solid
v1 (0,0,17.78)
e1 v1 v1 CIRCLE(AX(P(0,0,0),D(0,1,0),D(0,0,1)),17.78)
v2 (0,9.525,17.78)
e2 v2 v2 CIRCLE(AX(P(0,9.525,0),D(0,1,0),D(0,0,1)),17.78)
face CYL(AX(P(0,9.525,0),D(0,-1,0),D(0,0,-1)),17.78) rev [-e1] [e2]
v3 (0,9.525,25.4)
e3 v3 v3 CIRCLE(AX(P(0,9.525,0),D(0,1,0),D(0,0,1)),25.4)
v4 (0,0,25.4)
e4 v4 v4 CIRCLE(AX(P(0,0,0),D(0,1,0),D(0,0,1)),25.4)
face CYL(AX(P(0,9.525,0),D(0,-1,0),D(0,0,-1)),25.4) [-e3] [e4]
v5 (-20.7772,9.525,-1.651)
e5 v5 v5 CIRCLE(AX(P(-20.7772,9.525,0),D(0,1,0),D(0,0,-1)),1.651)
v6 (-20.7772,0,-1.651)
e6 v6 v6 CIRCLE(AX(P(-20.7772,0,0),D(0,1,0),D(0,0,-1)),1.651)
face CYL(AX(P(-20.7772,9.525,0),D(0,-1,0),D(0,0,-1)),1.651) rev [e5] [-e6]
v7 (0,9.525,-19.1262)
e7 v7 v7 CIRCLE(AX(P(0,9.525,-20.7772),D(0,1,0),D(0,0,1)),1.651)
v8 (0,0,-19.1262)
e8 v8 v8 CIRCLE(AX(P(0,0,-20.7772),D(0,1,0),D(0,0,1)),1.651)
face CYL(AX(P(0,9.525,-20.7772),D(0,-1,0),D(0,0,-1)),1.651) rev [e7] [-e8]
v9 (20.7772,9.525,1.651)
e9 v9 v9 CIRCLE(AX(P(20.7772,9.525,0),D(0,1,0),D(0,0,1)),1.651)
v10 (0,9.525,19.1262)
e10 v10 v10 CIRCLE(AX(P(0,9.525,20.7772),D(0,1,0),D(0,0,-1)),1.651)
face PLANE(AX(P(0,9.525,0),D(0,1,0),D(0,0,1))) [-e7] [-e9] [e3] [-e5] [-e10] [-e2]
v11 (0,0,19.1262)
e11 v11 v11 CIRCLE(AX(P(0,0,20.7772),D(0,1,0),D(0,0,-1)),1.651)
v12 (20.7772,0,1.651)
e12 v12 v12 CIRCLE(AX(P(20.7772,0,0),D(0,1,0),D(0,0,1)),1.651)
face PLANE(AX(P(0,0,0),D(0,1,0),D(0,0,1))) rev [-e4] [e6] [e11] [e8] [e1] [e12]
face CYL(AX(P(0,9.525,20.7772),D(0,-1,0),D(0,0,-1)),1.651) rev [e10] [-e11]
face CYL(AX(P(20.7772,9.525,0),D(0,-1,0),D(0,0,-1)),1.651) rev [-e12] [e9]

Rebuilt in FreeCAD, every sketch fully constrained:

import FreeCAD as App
import Part
import Sketcher

V = App.Vector
Q = App.Units.Quantity

doc = App.newDocument("Part")
body = doc.addObject("PartDesign::Body", "Body")

# Sketch on XZ plane
sketch1 = body.newObject("Sketcher::SketchObject", "Sketch")
sketch1.AttachmentSupport = (doc.getObject("XZ_Plane"), [""])
sketch1.MapMode = "FlatFace"
sketch1.addGeometry(Part.Circle(V(0, 0, 0), V(0, 0, 1), 25.4), False)
sketch1.addGeometry(Part.Circle(V(0, -20.8, 0), V(0, 0, 1), 1.7), False)
sketch1.addGeometry(Part.Circle(V(0, 0, 0), V(0, 0, 1), 17.8), False)
sketch1.addGeometry(Part.Circle(V(-20.8, 0, 0), V(0, 0, 1), 1.7), False)
sketch1.addGeometry(Part.Circle(V(20.8, 0, 0), V(0, 0, 1), 1.7), False)
sketch1.addGeometry(Part.Circle(V(0, 20.8, 0), V(0, 0, 1), 1.7), False)
sketch1.addConstraint(Sketcher.Constraint("Coincident", 0, 3, -1, 1))
sketch1.addConstraint(Sketcher.Constraint("Coincident", 2, 3, -1, 1))
sketch1.addConstraint(Sketcher.Constraint("Equal", 1, 3))
sketch1.addConstraint(Sketcher.Constraint("Equal", 3, 4))
sketch1.addConstraint(Sketcher.Constraint("Equal", 4, 5))
sketch1.addConstraint(Sketcher.Constraint("Symmetric", 3, 3, 4, 3, -1, 1))
sketch1.addConstraint(Sketcher.Constraint("Symmetric", 1, 3, 5, 3, -1, 1))
sketch1.addConstraint(Sketcher.Constraint("PointOnObject", 1, 3, -2))
sketch1.addConstraint(Sketcher.Constraint("PointOnObject", 3, 3, -1))
sketch1.addConstraint(Sketcher.Constraint("Diameter", 0, Q("2 in")))
sketch1.addConstraint(Sketcher.Constraint("Diameter", 2, Q("1.4 in")))
sketch1.addConstraint(Sketcher.Constraint("Diameter", 1, Q("0.13 in")))
sketch1.addConstraint(Sketcher.Constraint("DistanceY", 1, 3, -1, 1, Q("0.818 in")))
sketch1.addConstraint(Sketcher.Constraint("DistanceX", 3, 3, -1, 1, Q("0.818 in")))
pad1 = body.newObject("PartDesign::Pad", "Pad")
pad1.Profile = sketch1
pad1.Length = Q("0.375 in")
pad1.Reversed = True

doc.recompute()
